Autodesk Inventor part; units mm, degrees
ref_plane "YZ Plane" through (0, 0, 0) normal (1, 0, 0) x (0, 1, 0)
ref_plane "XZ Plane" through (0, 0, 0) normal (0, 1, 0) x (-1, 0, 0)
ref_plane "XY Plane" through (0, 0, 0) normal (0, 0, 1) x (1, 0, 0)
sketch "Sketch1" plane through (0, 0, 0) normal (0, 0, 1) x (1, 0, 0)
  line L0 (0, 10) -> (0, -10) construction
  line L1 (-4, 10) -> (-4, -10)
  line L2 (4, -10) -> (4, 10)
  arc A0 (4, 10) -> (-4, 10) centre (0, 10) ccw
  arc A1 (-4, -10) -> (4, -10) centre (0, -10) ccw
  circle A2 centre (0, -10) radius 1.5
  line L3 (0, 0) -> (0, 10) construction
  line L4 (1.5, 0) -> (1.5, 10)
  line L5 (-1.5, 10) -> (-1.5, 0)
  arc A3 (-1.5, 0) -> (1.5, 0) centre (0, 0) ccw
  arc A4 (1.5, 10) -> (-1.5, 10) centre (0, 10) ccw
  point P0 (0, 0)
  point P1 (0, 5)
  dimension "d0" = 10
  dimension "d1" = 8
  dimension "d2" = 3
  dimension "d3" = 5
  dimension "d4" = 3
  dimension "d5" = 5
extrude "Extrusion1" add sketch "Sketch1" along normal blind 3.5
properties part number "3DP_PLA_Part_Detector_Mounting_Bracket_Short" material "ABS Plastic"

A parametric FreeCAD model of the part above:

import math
import FreeCAD as App
import Part
import Sketcher
from FreeCAD import Vector

doc = App.newDocument("Part")
body = doc.addObject("PartDesign::Body", "Body")

sketch1 = body.newObject("Sketcher::SketchObject", "Sketch")
sketch1.AttachmentSupport = (doc.getObject("XY_Plane"), [""])
sketch1.MapMode = "FlatFace"
sketch1.addGeometry(Part.ArcOfCircle(Part.Circle(Vector(0, 10, 0), Vector(0, 0, 1), 4), math.radians(0), math.radians(180)), False)
sketch1.addGeometry(Part.LineSegment(Vector(-4, 10, 0), Vector(-4, -10, 0)), False)
sketch1.addGeometry(Part.ArcOfCircle(Part.Circle(Vector(0, -10, 0), Vector(0, 0, 1), 4), math.radians(180), math.radians(360)), False)
sketch1.addGeometry(Part.LineSegment(Vector(4, -10, 0), Vector(4, 10, 0)), False)
sketch1.addGeometry(Part.Circle(Vector(0, -10, 0), Vector(0, 0, 1), 1.5), False)
sketch1.addGeometry(Part.LineSegment(Vector(1.5, 10, 0), Vector(1.5, 0, 0)), False)
sketch1.addGeometry(Part.ArcOfCircle(Part.Circle(Vector(0, 0, 0), Vector(0, 0, 1), 1.5), math.radians(180), math.radians(360)), False)
sketch1.addGeometry(Part.LineSegment(Vector(-1.5, 0, 0), Vector(-1.5, 10, 0)), False)
sketch1.addGeometry(Part.ArcOfCircle(Part.Circle(Vector(0, 10, 0), Vector(0, 0, 1), 1.5), math.radians(0), math.radians(180)), False)
sketch1.addConstraint(Sketcher.Constraint("Tangent", 0, 2, 1, 1))
sketch1.addConstraint(Sketcher.Constraint("Tangent", 1, 2, 2, 1))
sketch1.addConstraint(Sketcher.Constraint("Tangent", 2, 2, 3, 1))
sketch1.addConstraint(Sketcher.Constraint("Tangent", 3, 2, 0, 1))
sketch1.addConstraint(Sketcher.Constraint("Tangent", 5, 2, 6, 2))
sketch1.addConstraint(Sketcher.Constraint("Tangent", 6, 1, 7, 1))
sketch1.addConstraint(Sketcher.Constraint("Tangent", 7, 2, 8, 2))
sketch1.addConstraint(Sketcher.Constraint("Tangent", 8, 1, 5, 1))
sketch1.addConstraint(Sketcher.Constraint("Vertical", 1))
sketch1.addConstraint(Sketcher.Constraint("Vertical", 3))
sketch1.addConstraint(Sketcher.Constraint("Vertical", 5))
sketch1.addConstraint(Sketcher.Constraint("Vertical", 7))
sketch1.addConstraint(Sketcher.Constraint("Coincident", 6, 3, -1, 1))
sketch1.addConstraint(Sketcher.Constraint("Coincident", 4, 3, 2, 3))
sketch1.addConstraint(Sketcher.Constraint("Coincident", 8, 3, 0, 3))
sketch1.addConstraint(Sketcher.Constraint("Equal", 4, 6))
sketch1.addConstraint(Sketcher.Constraint("Diameter", 4, 3.0))
sketch1.addConstraint(Sketcher.Constraint("Radius", 0, 4.0))
sketch1.addConstraint(Sketcher.Constraint("DistanceY", 5, 2, 5, 1, 10.0))
sketch1.addConstraint(Sketcher.Constraint("DistanceY", 2, 3, -1, 1, 10.0))
pad1 = body.newObject("PartDesign::Pad", "Pad")
pad1.Profile = sketch1
pad1.Length = 3.5

doc.recompute()
